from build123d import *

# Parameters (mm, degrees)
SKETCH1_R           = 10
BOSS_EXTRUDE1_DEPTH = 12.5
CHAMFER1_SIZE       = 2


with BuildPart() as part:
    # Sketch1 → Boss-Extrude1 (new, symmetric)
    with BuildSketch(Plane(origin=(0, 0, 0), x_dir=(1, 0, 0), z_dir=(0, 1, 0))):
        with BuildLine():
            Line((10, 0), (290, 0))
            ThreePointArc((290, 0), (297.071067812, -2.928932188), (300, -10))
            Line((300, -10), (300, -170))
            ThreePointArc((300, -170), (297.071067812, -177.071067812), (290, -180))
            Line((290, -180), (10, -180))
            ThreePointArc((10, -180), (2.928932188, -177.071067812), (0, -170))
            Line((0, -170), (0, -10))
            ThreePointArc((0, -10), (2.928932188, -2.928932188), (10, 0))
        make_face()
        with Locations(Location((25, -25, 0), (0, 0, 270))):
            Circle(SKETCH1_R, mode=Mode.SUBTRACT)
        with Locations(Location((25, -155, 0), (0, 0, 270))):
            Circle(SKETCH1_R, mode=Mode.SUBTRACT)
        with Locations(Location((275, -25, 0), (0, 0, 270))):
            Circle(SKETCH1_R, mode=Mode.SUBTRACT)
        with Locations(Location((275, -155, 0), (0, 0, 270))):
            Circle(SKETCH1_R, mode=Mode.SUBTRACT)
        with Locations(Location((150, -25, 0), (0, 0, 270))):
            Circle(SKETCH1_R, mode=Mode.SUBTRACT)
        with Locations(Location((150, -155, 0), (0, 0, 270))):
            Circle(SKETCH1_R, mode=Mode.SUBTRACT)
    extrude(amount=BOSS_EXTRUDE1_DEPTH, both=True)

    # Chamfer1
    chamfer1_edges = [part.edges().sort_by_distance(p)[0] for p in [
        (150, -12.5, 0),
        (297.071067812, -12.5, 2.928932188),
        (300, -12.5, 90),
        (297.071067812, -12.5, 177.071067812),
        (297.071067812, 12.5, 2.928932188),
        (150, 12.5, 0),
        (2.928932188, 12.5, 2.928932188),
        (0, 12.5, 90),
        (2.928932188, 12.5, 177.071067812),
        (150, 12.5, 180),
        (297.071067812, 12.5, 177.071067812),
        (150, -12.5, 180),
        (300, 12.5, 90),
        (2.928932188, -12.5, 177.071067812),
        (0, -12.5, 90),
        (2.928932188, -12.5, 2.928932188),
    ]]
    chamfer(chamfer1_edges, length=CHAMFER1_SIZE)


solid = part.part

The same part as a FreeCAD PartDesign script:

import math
import FreeCAD as App
import Part
import Sketcher
from FreeCAD import Vector


def edges_at(feature, points):
    """Names of the edges that pass closest to the given points."""
    edges = feature.Shape.Edges
    near = lambda p: min(range(len(edges)), key=lambda i: edges[i].distToShape(Part.Vertex(*p))[0])
    return sorted({f"Edge{near(p) + 1}" for p in points})

doc = App.newDocument("Part")
body = doc.addObject("PartDesign::Body", "Body")

sketch1 = body.newObject("Sketcher::SketchObject", "Sketch")
sketch1.AttachmentSupport = (doc.getObject("XZ_Plane"), [""])
sketch1.MapMode = "FlatFace"
sketch1.addGeometry(Part.LineSegment(Vector(290, 0, 0), Vector(10, 0, 0)), False)
sketch1.addGeometry(Part.ArcOfCircle(Part.Circle(Vector(10, 10, 0), Vector(0, 0, 1), 10), math.radians(180), math.radians(270)), False)
sketch1.addGeometry(Part.LineSegment(Vector(0, 10, 0), Vector(0, 170, 0)), False)
sketch1.addGeometry(Part.ArcOfCircle(Part.Circle(Vector(10, 170, 0), Vector(0, 0, 1), 10), math.radians(90), math.radians(180)), False)
sketch1.addGeometry(Part.LineSegment(Vector(10, 180, 0), Vector(290, 180, 0)), False)
sketch1.addGeometry(Part.ArcOfCircle(Part.Circle(Vector(290, 170, 0), Vector(0, 0, 1), 10), math.radians(0), math.radians(90)), False)
sketch1.addGeometry(Part.LineSegment(Vector(300, 170, 0), Vector(300, 10, 0)), False)
sketch1.addGeometry(Part.ArcOfCircle(Part.Circle(Vector(290, 10, 0), Vector(0, 0, 1), 10), math.radians(-90), math.radians(0)), False)
sketch1.addGeometry(Part.Circle(Vector(275, 155, 0), Vector(0, 0, 1), 10), False)
sketch1.addGeometry(Part.Circle(Vector(150, 155, 0), Vector(0, 0, 1), 10), False)
sketch1.addGeometry(Part.Circle(Vector(25, 155, 0), Vector(0, 0, 1), 10), False)
sketch1.addGeometry(Part.Circle(Vector(275, 25, 0), Vector(0, 0, 1), 10), False)
sketch1.addGeometry(Part.Circle(Vector(150, 25, 0), Vector(0, 0, 1), 10), False)
sketch1.addGeometry(Part.Circle(Vector(25, 25, 0), Vector(0, 0, 1), 10), False)
sketch1.addConstraint(Sketcher.Constraint("Tangent", 0, 2, 1, 2))
sketch1.addConstraint(Sketcher.Constraint("Tangent", 1, 1, 2, 1))
sketch1.addConstraint(Sketcher.Constraint("Tangent", 2, 2, 3, 2))
sketch1.addConstraint(Sketcher.Constraint("Tangent", 3, 1, 4, 1))
sketch1.addConstraint(Sketcher.Constraint("Tangent", 4, 2, 5, 2))
sketch1.addConstraint(Sketcher.Constraint("Tangent", 5, 1, 6, 1))
sketch1.addConstraint(Sketcher.Constraint("Tangent", 6, 2, 7, 2))
sketch1.addConstraint(Sketcher.Constraint("Tangent", 7, 1, 0, 1))
sketch1.addConstraint(Sketcher.Constraint("Horizontal", 0))
sketch1.addConstraint(Sketcher.Constraint("Vertical", 2))
sketch1.addConstraint(Sketcher.Constraint("Horizontal", 4))
sketch1.addConstraint(Sketcher.Constraint("Vertical", 6))
sketch1.addConstraint(Sketcher.Constraint("Equal", 1, 3))
sketch1.addConstraint(Sketcher.Constraint("Equal", 3, 5))
sketch1.addConstraint(Sketcher.Constraint("Equal", 5, 7))
sketch1.addConstraint(Sketcher.Constraint("Equal", 7, 8))
sketch1.addConstraint(Sketcher.Constraint("Equal", 8, 9))
sketch1.addConstraint(Sketcher.Constraint("Equal", 9, 10))
sketch1.addConstraint(Sketcher.Constraint("Equal", 10, 11))
sketch1.addConstraint(Sketcher.Constraint("Equal", 11, 12))
sketch1.addConstraint(Sketcher.Constraint("Equal", 12, 13))
sketch1.addConstraint(Sketcher.Constraint("PointOnObject", 0, 2, -1))
sketch1.addConstraint(Sketcher.Constraint("PointOnObject", 1, 1, -2))
sketch1.addConstraint(Sketcher.Constraint("Horizontal", 8, 3, 9, 3))
sketch1.addConstraint(Sketcher.Constraint("Horizontal", 9, 3, 10, 3))
sketch1.addConstraint(Sketcher.Constraint("Horizontal", 11, 3, 12, 3))
sketch1.addConstraint(Sketcher.Constraint("Horizontal", 12, 3, 13, 3))
sketch1.addConstraint(Sketcher.Constraint("Vertical", 8, 3, 11, 3))
sketch1.addConstraint(Sketcher.Constraint("Vertical", 9, 3, 12, 3))
sketch1.addConstraint(Sketcher.Constraint("Vertical", 10, 3, 13, 3))
sketch1.addConstraint(Sketcher.Constraint("Diameter", 8, 20.0))
sketch1.addConstraint(Sketcher.Constraint("DistanceX", 0, 2, 0, 1, 280.0))
sketch1.addConstraint(Sketcher.Constraint("DistanceY", 2, 1, 2, 2, 160.0))
sketch1.addConstraint(Sketcher.Constraint("DistanceX", -1, 1, 8, 3, 275.0))
sketch1.addConstraint(Sketcher.Constraint("DistanceY", -1, 1, 8, 3, 155.0))
sketch1.addConstraint(Sketcher.Constraint("DistanceX", -1, 1, 9, 3, 150.0))
sketch1.addConstraint(Sketcher.Constraint("DistanceX", -1, 1, 10, 3, 25.0))
sketch1.addConstraint(Sketcher.Constraint("DistanceY", -1, 1, 11, 3, 25.0))
pad1 = body.newObject("PartDesign::Pad", "Pad")
pad1.Profile = sketch1
pad1.Length = 25
pad1.Midplane = True
doc.recompute()

chamfer = body.newObject("PartDesign::Chamfer", "Chamfer")
chamfer.Base = (pad1, edges_at(pad1, [
    (150, -12.5, 0),
    (297.071, -12.5, 2.929),
    (300, -12.5, 90),
    (297.071, -12.5, 177.071),
    (297.071, 12.5, 2.929),
    (150, 12.5, 0),
    (2.929, 12.5, 2.929),
    (0, 12.5, 90),
    (2.929, 12.5, 177.071),
    (150, 12.5, 180),
    (297.071, 12.5, 177.071),
    (150, -12.5, 180),
    (300, 12.5, 90),
    (2.929, -12.5, 177.071),
    (0, -12.5, 90),
    (2.929, -12.5, 2.929),
]))
chamfer.Size = 2

doc.recompute()
